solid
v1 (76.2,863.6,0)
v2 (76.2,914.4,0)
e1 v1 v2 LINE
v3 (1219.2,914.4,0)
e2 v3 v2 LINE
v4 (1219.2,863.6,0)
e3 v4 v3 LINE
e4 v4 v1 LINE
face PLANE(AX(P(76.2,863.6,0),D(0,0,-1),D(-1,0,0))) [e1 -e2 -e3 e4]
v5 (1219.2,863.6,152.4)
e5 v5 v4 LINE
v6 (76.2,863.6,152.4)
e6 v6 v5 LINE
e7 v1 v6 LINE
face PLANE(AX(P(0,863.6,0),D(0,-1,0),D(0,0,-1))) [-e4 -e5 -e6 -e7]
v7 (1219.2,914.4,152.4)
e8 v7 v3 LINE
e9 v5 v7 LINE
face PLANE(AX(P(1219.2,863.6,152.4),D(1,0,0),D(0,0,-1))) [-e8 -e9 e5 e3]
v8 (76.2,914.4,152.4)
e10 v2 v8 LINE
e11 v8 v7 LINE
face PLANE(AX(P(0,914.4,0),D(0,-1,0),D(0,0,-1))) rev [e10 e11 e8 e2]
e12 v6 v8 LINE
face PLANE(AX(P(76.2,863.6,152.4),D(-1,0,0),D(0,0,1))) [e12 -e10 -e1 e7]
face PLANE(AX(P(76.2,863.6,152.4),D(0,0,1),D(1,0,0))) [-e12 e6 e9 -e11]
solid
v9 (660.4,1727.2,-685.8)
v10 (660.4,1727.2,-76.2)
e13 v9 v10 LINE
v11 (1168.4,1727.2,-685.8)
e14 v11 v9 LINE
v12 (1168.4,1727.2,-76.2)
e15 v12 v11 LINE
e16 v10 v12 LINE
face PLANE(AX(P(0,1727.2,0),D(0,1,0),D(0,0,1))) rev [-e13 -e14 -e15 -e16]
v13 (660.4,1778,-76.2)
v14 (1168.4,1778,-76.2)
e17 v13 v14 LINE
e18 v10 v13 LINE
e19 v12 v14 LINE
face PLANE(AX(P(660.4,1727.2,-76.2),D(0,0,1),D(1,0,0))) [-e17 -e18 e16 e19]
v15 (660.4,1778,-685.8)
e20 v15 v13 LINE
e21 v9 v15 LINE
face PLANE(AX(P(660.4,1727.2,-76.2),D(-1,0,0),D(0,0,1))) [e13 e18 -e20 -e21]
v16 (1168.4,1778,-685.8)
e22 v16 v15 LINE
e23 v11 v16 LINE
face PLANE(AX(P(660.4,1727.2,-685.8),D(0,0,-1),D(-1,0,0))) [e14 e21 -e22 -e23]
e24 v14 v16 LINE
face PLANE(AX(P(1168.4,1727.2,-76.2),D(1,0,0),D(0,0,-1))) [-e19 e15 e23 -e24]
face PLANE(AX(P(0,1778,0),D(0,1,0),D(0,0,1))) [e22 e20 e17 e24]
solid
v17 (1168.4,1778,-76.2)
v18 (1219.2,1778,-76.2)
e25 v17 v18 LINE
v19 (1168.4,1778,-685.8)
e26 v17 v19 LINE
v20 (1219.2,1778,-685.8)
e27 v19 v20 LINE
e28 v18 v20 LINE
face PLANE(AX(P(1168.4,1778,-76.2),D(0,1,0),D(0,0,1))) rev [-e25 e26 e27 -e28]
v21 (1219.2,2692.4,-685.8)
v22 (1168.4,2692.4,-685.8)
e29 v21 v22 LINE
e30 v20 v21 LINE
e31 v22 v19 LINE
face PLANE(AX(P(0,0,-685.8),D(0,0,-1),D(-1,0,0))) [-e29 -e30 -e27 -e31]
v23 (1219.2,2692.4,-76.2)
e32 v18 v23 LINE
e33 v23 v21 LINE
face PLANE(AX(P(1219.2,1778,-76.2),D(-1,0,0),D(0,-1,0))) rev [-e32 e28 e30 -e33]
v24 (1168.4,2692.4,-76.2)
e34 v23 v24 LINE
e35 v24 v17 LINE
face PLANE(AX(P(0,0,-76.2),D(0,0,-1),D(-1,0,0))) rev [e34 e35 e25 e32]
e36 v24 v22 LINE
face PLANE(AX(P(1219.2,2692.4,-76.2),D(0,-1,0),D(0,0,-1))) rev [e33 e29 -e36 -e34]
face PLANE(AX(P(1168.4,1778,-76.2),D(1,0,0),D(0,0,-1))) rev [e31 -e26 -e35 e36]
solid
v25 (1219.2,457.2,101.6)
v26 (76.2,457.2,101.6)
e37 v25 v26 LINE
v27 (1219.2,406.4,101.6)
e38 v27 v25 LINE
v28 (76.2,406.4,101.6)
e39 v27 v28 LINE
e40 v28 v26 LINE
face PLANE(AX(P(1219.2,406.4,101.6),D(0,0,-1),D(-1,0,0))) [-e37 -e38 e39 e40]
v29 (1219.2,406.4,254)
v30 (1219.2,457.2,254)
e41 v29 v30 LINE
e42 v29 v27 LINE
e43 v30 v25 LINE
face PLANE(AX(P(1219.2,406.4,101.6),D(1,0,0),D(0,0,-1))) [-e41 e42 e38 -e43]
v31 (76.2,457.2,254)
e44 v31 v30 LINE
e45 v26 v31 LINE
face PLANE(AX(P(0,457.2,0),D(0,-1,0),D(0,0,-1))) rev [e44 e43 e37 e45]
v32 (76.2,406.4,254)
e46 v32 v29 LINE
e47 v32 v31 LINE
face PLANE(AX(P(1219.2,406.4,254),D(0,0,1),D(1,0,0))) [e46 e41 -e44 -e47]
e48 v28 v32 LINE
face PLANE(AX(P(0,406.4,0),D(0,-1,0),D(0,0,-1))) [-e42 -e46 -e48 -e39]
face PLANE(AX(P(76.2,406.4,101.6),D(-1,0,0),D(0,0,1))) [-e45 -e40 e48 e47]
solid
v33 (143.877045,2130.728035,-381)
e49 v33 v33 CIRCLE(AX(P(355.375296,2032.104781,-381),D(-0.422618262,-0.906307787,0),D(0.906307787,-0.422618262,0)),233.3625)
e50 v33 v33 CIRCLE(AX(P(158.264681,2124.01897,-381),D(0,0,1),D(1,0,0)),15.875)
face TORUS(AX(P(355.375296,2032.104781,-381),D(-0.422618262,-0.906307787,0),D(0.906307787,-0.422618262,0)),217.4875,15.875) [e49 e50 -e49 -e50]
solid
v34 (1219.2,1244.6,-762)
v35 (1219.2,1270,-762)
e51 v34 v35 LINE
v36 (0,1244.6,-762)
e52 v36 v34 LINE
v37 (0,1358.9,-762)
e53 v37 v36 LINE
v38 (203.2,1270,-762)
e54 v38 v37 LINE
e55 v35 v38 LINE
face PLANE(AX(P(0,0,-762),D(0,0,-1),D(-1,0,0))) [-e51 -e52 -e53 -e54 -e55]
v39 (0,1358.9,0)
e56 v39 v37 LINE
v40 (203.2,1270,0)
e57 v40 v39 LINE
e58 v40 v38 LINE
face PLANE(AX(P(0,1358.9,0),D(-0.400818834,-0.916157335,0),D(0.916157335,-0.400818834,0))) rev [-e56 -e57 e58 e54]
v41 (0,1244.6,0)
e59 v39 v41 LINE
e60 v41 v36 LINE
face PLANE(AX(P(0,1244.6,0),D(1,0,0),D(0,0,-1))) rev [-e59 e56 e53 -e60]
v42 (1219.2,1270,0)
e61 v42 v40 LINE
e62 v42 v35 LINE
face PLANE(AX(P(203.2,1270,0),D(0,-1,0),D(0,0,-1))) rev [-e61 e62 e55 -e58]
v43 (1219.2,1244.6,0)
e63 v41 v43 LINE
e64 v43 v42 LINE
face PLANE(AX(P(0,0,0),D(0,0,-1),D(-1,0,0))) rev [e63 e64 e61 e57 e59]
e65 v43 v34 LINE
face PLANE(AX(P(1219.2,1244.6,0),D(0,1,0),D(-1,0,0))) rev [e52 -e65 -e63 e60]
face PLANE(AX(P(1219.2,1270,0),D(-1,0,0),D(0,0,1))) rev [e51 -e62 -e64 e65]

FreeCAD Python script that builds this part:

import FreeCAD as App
import Part
import Sketcher
Q = App.Units.Quantity

doc = App.newDocument("Part")
params = doc.addObject("Spreadsheet::Sheet", "Params")
for row, (alias, value) in enumerate([
    ("sketch1_width", "45 in"),
    ("sketch1_height", "6 in"),
    ("pad1_length", "2 in"),
    ("sketch2_width", "45 in"),
    ("sketch2_height", "6 in"),
    ("pad2_length", "2 in"),
    ("sketch3_width", "20 in"),
    ("sketch3_height", "24 in"),
    ("pad3_length", "2 in"),
    ("sketch4_width", "2 in"),
    ("sketch4_height", "36 in"),
    ("pad4_length", "12 in"),
    ("pad4_length2", "12 in"),
    ("sketch5_width", "48 in"),
    ("sketch5_width2", "40 in"),
    ("sketch5_height", "1 in"),
    ("sketch5_height2", "4.5 in"),
    ("pad5_length", "15 in"),
    ("pad5_length2", "15 in"),
    ("sketch6_diameter", "1.25 in"),
    ("sketch7_diameter", "17.125 in"),
], start=1):
    params.set(f"A{row}", alias)
    params.set(f"B{row}", "=" + value)
    params.setAlias(f"B{row}", alias)

body = doc.addObject("PartDesign::Body", "Body")

# Sketch on XZ plane
sketch1 = doc.addObject("Sketcher::SketchObject", "Sketch")
body.addObject(sketch1)
sketch1.AttachmentSupport = (doc.XZ_Plane, [""])
sketch1.MapMode = "FlatFace"
sketch1.AttachmentOffset = App.Placement(App.Vector(0, 0, -36 * 25.4), App.Rotation())
sketch1.addGeometry([
    Part.LineSegment(App.Vector(76, 0, 0), App.Vector(76, 152, 0)),
    Part.LineSegment(App.Vector(76, 152, 0), App.Vector(1219, 152, 0)),
    Part.LineSegment(App.Vector(1219, 152, 0), App.Vector(1219, 0, 0)),
    Part.LineSegment(App.Vector(1219, 0, 0), App.Vector(76, 0, 0)),
], False)
sketch1.addConstraint([
    Sketcher.Constraint("Coincident", 0, 2, 1, 1),
    Sketcher.Constraint("Coincident", 1, 2, 2, 1),
    Sketcher.Constraint("Coincident", 2, 2, 3, 1),
    Sketcher.Constraint("Coincident", 3, 2, 0, 1),
    Sketcher.Constraint("Vertical", 0),
    Sketcher.Constraint("Horizontal", 1),
    Sketcher.Constraint("Vertical", 2),
    Sketcher.Constraint("Horizontal", 3),
    Sketcher.Constraint("PointOnObject", 2, 2, -1),
    Sketcher.Constraint("DistanceX", 1, 1, 1, 2, Q("45 in")),
    Sketcher.Constraint("DistanceY", 0, 1, 0, 2, Q("6 in")),
    Sketcher.Constraint("DistanceX", -1, 1, 0, 2, Q("3 in")),
])
sketch1.setExpression("Constraints[9]", "Params.sketch1_width")
sketch1.setExpression("Constraints[10]", "Params.sketch1_height")
pad1 = doc.addObject("PartDesign::Pad", "Pad")
body.addObject(pad1)
pad1.Profile = sketch1
pad1.setExpression("Length", "Params.pad1_length")
body2 = doc.addObject("PartDesign::Body", "Body001")

# Sketch on XZ plane
sketch2 = doc.addObject("Sketcher::SketchObject", "Sketch001")
body2.addObject(sketch2)
sketch2.AttachmentSupport = (doc.getObject("XZ_Plane001"), [""])
sketch2.MapMode = "FlatFace"
sketch2.AttachmentOffset = App.Placement(App.Vector(0, 0, -18 * 25.4), App.Rotation())
sketch2.addGeometry([
    Part.LineSegment(App.Vector(76, 102, 0), App.Vector(76, 254, 0)),
    Part.LineSegment(App.Vector(76, 254, 0), App.Vector(1219, 254, 0)),
    Part.LineSegment(App.Vector(1219, 254, 0), App.Vector(1219, 102, 0)),
    Part.LineSegment(App.Vector(1219, 102, 0), App.Vector(76, 102, 0)),
], False)
sketch2.addConstraint([
    Sketcher.Constraint("Coincident", 0, 2, 1, 1),
    Sketcher.Constraint("Coincident", 1, 2, 2, 1),
    Sketcher.Constraint("Coincident", 2, 2, 3, 1),
    Sketcher.Constraint("Coincident", 3, 2, 0, 1),
    Sketcher.Constraint("Vertical", 0),
    Sketcher.Constraint("Horizontal", 1),
    Sketcher.Constraint("Vertical", 2),
    Sketcher.Constraint("Horizontal", 3),
    Sketcher.Constraint("DistanceX", 1, 1, 1, 2, Q("45 in")),
    Sketcher.Constraint("DistanceY", 0, 1, 0, 2, Q("6 in")),
    Sketcher.Constraint("DistanceX", -1, 1, 0, 2, Q("3 in")),
    Sketcher.Constraint("DistanceY", -1, 1, 0, 2, Q("10 in")),
])
sketch2.setExpression("Constraints[8]", "Params.sketch2_width")
sketch2.setExpression("Constraints[9]", "Params.sketch2_height")
pad2 = doc.addObject("PartDesign::Pad", "Pad001")
body2.addObject(pad2)
pad2.Profile = sketch2
pad2.setExpression("Length", "Params.pad2_length")
body3 = doc.addObject("PartDesign::Body", "Body002")

# Sketch on XZ plane
sketch3 = doc.addObject("Sketcher::SketchObject", "Sketch002")
body3.addObject(sketch3)
sketch3.AttachmentSupport = (doc.getObject("XZ_Plane002"), [""])
sketch3.MapMode = "FlatFace"
sketch3.AttachmentOffset = App.Placement(App.Vector(0, 0, -70 * 25.4), App.Rotation())
sketch3.addGeometry([
    Part.LineSegment(App.Vector(660, -686, 0), App.Vector(660, -76, 0)),
    Part.LineSegment(App.Vector(660, -76, 0), App.Vector(1168, -76, 0)),
    Part.LineSegment(App.Vector(1168, -76, 0), App.Vector(1168, -686, 0)),
    Part.LineSegment(App.Vector(1168, -686, 0), App.Vector(660, -686, 0)),
], False)
sketch3.addConstraint([
    Sketcher.Constraint("Coincident", 0, 2, 1, 1),
    Sketcher.Constraint("Coincident", 1, 2, 2, 1),
    Sketcher.Constraint("Coincident", 2, 2, 3, 1),
    Sketcher.Constraint("Coincident", 3, 2, 0, 1),
    Sketcher.Constraint("Vertical", 0),
    Sketcher.Constraint("Horizontal", 1),
    Sketcher.Constraint("Vertical", 2),
    Sketcher.Constraint("Horizontal", 3),
    Sketcher.Constraint("DistanceX", 1, 1, 1, 2, Q("20 in")),
    Sketcher.Constraint("DistanceY", 0, 1, 0, 2, Q("24 in")),
    Sketcher.Constraint("DistanceX", -1, 1, 0, 2, Q("26 in")),
    Sketcher.Constraint("DistanceY", 0, 2, -1, 1, Q("3 in")),
])
sketch3.setExpression("Constraints[8]", "Params.sketch3_width")
sketch3.setExpression("Constraints[9]", "Params.sketch3_height")
pad3 = doc.addObject("PartDesign::Pad", "Pad002")
body3.addObject(pad3)
pad3.Profile = sketch3
pad3.setExpression("Length", "Params.pad3_length")
body4 = doc.addObject("PartDesign::Body", "Body003")

# Sketch on XY plane
sketch4 = doc.addObject("Sketcher::SketchObject", "Sketch003")
body4.addObject(sketch4)
sketch4.AttachmentSupport = (doc.getObject("XY_Plane003"), [""])
sketch4.MapMode = "FlatFace"
sketch4.AttachmentOffset = App.Placement(App.Vector(0, 0, -15 * 25.4), App.Rotation())
sketch4.addGeometry([
    Part.LineSegment(App.Vector(1168, 2692, 0), App.Vector(1168, 1778, 0)),
    Part.LineSegment(App.Vector(1168, 1778, 0), App.Vector(1219, 1778, 0)),
    Part.LineSegment(App.Vector(1219, 1778, 0), App.Vector(1219, 2692, 0)),
    Part.LineSegment(App.Vector(1219, 2692, 0), App.Vector(1168, 2692, 0)),
], False)
sketch4.addConstraint([
    Sketcher.Constraint("Coincident", 0, 2, 1, 1),
    Sketcher.Constraint("Coincident", 1, 2, 2, 1),
    Sketcher.Constraint("Coincident", 2, 2, 3, 1),
    Sketcher.Constraint("Coincident", 3, 2, 0, 1),
    Sketcher.Constraint("Vertical", 0),
    Sketcher.Constraint("Horizontal", 1),
    Sketcher.Constraint("Vertical", 2),
    Sketcher.Constraint("Horizontal", 3),
    Sketcher.Constraint("DistanceX", 1, 1, 1, 2, Q("2 in")),
    Sketcher.Constraint("DistanceY", 0, 2, 0, 1, Q("36 in")),
    Sketcher.Constraint("DistanceX", -1, 1, 0, 2, Q("46 in")),
    Sketcher.Constraint("DistanceY", -1, 1, 0, 2, Q("70 in")),
])
sketch4.setExpression("Constraints[8]", "Params.sketch4_width")
sketch4.setExpression("Constraints[9]", "Params.sketch4_height")
pad4 = doc.addObject("PartDesign::Pad", "Pad003")
body4.addObject(pad4)
pad4.Profile = sketch4
pad4.Type = "TwoLengths"
pad4.setExpression("Length", "Params.pad4_length")
pad4.setExpression("Length2", "Params.pad4_length2")
body5 = doc.addObject("PartDesign::Body", "Body004")

# Sketch on XY plane
sketch5 = doc.addObject("Sketcher::SketchObject", "Sketch004")
body5.addObject(sketch5)
sketch5.AttachmentSupport = (doc.getObject("XY_Plane004"), [""])
sketch5.MapMode = "FlatFace"
sketch5.AttachmentOffset = App.Placement(App.Vector(0, 0, -15 * 25.4), App.Rotation())
sketch5.addGeometry([
    Part.LineSegment(App.Vector(203, 1270, 0), App.Vector(0, 1359, 0)),  # 0
    Part.LineSegment(App.Vector(0, 1359, 0), App.Vector(0, 1245, 0)),  # 1
    Part.LineSegment(App.Vector(0, 1245, 0), App.Vector(1219, 1245, 0)),  # 2
    Part.LineSegment(App.Vector(1219, 1245, 0), App.Vector(1219, 1270, 0)),  # 3
    Part.LineSegment(App.Vector(1219, 1270, 0), App.Vector(203, 1270, 0)),  # 4
], False)
sketch5.addConstraint([
    Sketcher.Constraint("Coincident", 0, 2, 1, 1),
    Sketcher.Constraint("Coincident", 1, 2, 2, 1),
    Sketcher.Constraint("Coincident", 2, 2, 3, 1),
    Sketcher.Constraint("Coincident", 3, 2, 4, 1),
    Sketcher.Constraint("Coincident", 4, 2, 0, 1),
    Sketcher.Constraint("Vertical", 1),
    Sketcher.Constraint("Horizontal", 2),
    Sketcher.Constraint("Vertical", 3),
    Sketcher.Constraint("Horizontal", 4),
    Sketcher.Constraint("PointOnObject", 0, 2, -2),
    Sketcher.Constraint("DistanceX", 2, 1, 2, 2, Q("48 in")),
    Sketcher.Constraint("DistanceX", 4, 2, 4, 1, Q("40 in")),
    Sketcher.Constraint("DistanceY", 3, 1, 3, 2, Q("1 in")),
    Sketcher.Constraint("DistanceY", 1, 2, 1, 1, Q("4.5 in")),
    Sketcher.Constraint("DistanceY", -1, 1, 1, 2, Q("49 in")),
])
sketch5.setExpression("Constraints[10]", "Params.sketch5_width")
sketch5.setExpression("Constraints[11]", "Params.sketch5_width2")
sketch5.setExpression("Constraints[12]", "Params.sketch5_height")
sketch5.setExpression("Constraints[13]", "Params.sketch5_height2")
pad5 = doc.addObject("PartDesign::Pad", "Pad004")
body5.addObject(pad5)
pad5.Profile = sketch5
pad5.Type = "TwoLengths"
pad5.setExpression("Length", "Params.pad5_length")
pad5.setExpression("Length2", "Params.pad5_length2")
body6 = doc.addObject("PartDesign::Body", "Body005")

# Sketch on XY plane
sketch6 = doc.addObject("Sketcher::SketchObject", "Sketch005")
body6.addObject(sketch6)
sketch6.AttachmentSupport = (doc.getObject("XY_Plane005"), [""])
sketch6.MapMode = "FlatFace"
sketch6.AttachmentOffset = App.Placement(App.Vector(0, 0, -15 * 25.4), App.Rotation())
sketch6.addGeometry(Part.Circle(App.Vector(158, 2124, 0), App.Vector(0, 0, 1), 16), False)
sketch6.addConstraint([
    Sketcher.Constraint("Diameter", 0, Q("1.25 in")),
    Sketcher.Constraint("DistanceX", -1, 1, 0, 3, Q("158.264681 mm")),
    Sketcher.Constraint("DistanceY", -1, 1, 0, 3, Q("2124.01897 mm")),
])
sketch6.setExpression("Constraints[0]", "Params.sketch6_diameter")

# Sketch on an angled plane
sketch7 = doc.addObject("Sketcher::SketchObject", "Sketch006")
body6.addObject(sketch7)
sketch7.Placement = App.Placement(App.Vector(841.813517, 1805.274913, 0), App.Rotation(App.Vector(0.906307787, -0.422618262, 0), App.Vector(0, 0, 1), App.Vector(-0.422618262, -0.906307787, 0), "ZXY"))
sketch7.addGeometry(Part.Circle(App.Vector(-537, -381, 0), App.Vector(0, 0, 1), 217), False)
sketch7.addConstraint([
    Sketcher.Constraint("Diameter", 0, Q("17.125 in")),
    Sketcher.Constraint("DistanceY", 0, 3, -1, 1, Q("15 in")),
    Sketcher.Constraint("DistanceX", 0, 3, -1, 1, Q("536.725192 mm")),
])
sketch7.setExpression("Constraints[0]", "Params.sketch7_diameter")
doc.recompute()

additivepipe = doc.addObject("PartDesign::AdditivePipe", "AdditivePipe")
body6.addObject(additivepipe)
additivepipe.Profile = sketch6
additivepipe.Spine = (sketch7, ["Edge1"])

doc.recompute()
